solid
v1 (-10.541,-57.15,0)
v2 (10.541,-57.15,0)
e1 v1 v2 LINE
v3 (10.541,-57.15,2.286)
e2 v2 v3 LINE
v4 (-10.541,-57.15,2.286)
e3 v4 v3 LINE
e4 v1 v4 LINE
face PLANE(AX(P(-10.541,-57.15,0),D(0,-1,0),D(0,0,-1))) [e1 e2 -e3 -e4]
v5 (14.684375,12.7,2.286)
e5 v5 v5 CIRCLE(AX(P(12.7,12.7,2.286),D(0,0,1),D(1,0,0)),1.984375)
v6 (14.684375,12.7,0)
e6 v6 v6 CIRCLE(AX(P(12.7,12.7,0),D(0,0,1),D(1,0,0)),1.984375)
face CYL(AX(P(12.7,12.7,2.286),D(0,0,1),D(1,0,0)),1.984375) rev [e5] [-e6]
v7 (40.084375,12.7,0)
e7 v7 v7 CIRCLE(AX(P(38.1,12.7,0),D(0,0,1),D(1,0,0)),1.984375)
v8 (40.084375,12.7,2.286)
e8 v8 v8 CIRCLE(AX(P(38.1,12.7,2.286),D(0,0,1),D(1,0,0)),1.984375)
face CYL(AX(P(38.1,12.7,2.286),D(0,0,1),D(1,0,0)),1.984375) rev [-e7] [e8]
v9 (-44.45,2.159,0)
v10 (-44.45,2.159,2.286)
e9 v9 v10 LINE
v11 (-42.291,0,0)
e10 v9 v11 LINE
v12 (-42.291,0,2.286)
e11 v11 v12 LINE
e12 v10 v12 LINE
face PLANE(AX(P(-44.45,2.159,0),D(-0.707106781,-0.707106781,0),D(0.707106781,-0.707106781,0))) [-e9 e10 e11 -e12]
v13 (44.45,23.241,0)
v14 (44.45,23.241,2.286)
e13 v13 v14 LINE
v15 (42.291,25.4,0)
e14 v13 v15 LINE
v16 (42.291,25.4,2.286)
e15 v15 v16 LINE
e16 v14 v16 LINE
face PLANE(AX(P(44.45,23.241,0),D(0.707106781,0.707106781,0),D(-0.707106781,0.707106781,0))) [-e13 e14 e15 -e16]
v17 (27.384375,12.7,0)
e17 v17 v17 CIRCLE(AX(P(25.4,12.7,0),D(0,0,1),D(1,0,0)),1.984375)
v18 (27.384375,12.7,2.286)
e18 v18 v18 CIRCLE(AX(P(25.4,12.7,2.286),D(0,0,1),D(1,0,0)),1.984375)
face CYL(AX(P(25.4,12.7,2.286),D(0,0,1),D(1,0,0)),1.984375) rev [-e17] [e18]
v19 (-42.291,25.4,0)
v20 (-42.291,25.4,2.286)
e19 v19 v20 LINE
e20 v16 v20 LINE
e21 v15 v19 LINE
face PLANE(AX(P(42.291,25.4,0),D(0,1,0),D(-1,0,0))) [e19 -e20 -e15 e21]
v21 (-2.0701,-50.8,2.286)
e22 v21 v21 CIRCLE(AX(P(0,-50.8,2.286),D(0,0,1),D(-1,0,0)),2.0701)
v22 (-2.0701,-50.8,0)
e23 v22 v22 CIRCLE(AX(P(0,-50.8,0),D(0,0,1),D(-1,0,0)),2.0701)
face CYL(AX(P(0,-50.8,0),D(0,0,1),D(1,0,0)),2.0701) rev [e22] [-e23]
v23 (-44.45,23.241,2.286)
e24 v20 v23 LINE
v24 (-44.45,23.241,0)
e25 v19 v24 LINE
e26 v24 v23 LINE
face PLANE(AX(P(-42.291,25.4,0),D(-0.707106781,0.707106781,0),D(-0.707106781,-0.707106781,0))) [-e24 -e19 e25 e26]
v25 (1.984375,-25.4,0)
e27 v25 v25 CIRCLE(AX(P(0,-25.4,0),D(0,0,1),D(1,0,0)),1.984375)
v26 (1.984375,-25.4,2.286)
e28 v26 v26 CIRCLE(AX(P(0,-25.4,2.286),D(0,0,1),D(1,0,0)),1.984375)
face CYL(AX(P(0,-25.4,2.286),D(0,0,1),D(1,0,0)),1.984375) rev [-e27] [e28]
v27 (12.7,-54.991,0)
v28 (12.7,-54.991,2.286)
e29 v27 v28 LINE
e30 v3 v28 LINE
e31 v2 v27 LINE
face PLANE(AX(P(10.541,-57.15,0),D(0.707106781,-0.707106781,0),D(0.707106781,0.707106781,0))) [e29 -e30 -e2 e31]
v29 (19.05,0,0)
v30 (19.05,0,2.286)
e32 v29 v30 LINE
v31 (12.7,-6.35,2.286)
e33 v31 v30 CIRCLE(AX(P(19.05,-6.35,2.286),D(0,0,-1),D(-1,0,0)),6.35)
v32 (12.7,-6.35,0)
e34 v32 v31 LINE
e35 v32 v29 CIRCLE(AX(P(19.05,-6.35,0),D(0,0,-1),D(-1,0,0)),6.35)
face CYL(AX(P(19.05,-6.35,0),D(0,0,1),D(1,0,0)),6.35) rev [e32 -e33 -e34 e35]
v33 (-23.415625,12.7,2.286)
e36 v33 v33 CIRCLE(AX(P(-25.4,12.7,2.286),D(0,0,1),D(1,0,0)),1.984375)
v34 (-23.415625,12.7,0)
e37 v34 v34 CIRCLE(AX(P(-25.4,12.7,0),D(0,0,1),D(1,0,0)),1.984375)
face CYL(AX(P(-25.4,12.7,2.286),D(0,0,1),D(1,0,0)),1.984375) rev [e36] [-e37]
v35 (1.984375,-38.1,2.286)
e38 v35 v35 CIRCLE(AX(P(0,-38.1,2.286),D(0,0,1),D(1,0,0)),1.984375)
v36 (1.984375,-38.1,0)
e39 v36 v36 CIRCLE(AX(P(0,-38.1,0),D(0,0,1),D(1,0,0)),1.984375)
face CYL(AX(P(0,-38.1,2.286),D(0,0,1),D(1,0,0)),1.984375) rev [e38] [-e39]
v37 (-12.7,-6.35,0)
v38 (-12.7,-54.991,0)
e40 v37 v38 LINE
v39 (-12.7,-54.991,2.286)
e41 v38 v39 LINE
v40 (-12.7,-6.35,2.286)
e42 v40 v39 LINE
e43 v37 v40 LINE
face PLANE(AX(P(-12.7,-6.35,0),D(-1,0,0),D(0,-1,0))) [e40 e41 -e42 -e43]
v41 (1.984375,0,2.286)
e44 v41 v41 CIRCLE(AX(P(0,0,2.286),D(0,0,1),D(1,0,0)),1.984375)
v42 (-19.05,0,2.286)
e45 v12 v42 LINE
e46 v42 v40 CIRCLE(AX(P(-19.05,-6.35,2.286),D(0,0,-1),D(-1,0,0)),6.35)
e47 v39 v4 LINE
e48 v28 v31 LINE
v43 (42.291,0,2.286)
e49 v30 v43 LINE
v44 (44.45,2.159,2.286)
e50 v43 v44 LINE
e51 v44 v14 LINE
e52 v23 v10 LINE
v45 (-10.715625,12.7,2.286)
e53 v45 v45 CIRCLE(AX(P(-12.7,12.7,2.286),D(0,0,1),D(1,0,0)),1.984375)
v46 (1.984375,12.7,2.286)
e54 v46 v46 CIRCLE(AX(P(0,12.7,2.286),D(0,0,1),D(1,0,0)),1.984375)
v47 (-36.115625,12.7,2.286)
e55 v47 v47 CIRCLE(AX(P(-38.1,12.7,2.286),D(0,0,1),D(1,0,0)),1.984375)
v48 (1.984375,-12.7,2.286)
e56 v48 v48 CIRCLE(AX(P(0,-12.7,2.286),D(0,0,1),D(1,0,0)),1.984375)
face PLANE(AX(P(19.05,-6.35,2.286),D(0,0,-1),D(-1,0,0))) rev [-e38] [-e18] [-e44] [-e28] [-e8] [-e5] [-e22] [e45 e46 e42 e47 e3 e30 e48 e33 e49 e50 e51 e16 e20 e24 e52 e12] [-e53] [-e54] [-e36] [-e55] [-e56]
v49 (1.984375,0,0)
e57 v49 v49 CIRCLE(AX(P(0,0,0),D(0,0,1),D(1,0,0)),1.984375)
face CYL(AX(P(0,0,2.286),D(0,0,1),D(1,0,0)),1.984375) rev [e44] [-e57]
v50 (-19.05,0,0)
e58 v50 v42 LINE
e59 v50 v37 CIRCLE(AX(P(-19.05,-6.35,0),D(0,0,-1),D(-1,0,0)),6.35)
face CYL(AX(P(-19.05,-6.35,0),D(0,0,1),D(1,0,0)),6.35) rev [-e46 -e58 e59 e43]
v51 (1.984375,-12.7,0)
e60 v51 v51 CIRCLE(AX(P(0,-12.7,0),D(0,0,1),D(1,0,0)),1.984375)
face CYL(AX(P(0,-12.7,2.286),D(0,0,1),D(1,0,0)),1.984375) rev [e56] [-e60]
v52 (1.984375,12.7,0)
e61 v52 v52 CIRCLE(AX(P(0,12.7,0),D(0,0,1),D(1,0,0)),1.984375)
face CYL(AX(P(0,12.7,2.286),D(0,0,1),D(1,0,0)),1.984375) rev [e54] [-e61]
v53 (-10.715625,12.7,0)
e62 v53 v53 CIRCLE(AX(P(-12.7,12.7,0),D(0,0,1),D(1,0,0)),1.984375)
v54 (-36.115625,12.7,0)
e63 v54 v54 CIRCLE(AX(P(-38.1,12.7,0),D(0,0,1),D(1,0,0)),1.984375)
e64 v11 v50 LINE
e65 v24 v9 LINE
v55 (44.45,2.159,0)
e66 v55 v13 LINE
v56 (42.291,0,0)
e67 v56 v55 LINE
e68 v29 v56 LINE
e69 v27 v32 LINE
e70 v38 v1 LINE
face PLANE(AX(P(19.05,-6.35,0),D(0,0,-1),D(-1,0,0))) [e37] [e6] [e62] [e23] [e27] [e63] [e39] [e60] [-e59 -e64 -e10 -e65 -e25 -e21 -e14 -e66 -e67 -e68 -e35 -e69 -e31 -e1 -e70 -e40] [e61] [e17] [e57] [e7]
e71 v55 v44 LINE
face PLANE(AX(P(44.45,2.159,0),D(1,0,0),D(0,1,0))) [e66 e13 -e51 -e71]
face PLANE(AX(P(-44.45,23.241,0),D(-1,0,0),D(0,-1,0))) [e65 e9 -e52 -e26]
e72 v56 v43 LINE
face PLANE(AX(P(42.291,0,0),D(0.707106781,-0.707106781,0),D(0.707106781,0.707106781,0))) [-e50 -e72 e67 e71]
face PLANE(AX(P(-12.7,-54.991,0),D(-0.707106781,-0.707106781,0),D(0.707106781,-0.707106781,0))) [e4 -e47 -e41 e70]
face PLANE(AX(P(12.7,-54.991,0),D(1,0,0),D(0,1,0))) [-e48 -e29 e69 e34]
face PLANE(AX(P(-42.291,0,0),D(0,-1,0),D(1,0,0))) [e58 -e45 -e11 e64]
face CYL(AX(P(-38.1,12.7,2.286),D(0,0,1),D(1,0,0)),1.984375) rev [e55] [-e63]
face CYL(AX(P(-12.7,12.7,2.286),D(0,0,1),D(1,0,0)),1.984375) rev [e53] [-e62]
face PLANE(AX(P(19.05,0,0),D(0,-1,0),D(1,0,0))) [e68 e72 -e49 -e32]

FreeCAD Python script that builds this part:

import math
import FreeCAD as App
import Part
import Sketcher
Q = App.Units.Quantity

doc = App.newDocument("Part")
body = doc.addObject("PartDesign::Body", "Body")

sketch1 = doc.addObject("Sketcher::SketchObject", "Sketch")
body.addObject(sketch1)
sketch1.AttachmentSupport = (doc.XY_Plane, [""])
sketch1.MapMode = "FlatFace"
sketch1.AttachmentOffset = App.Placement(App.Vector(0, 0, 0.09 * 25.4), App.Rotation())
sketch1.addGeometry(Part.LineSegment(App.Vector(12.7, -55, 0), App.Vector(12.7, -6.3, 0)), False)
sketch1.addGeometry(Part.ArcOfCircle(Part.Circle(App.Vector(19, -6.3, 0), App.Vector(0, 0, 1), 6.3), math.radians(90), math.radians(180)), False)
sketch1.addGeometry(Part.LineSegment(App.Vector(19.1, 0, 0), App.Vector(42.3, 0, 0)), False)
sketch1.addGeometry(Part.LineSegment(App.Vector(42.3, 0, 0), App.Vector(44.5, 2.2, 0)), False)
sketch1.addGeometry(Part.LineSegment(App.Vector(44.5, 2.2, 0), App.Vector(44.5, 23.2, 0)), False)
sketch1.addGeometry(Part.LineSegment(App.Vector(44.5, 23.2, 0), App.Vector(42.3, 25.4, 0)), False)
sketch1.addGeometry(Part.LineSegment(App.Vector(42.3, 25.4, 0), App.Vector(-42.3, 25.4, 0)), False)
sketch1.addGeometry(Part.LineSegment(App.Vector(-42.3, 25.4, 0), App.Vector(-44.5, 23.2, 0)), False)
sketch1.addGeometry(Part.LineSegment(App.Vector(-44.5, 23.2, 0), App.Vector(-44.5, 2.2, 0)), False)
sketch1.addGeometry(Part.LineSegment(App.Vector(-44.5, 2.2, 0), App.Vector(-42.3, 0, 0)), False)
sketch1.addGeometry(Part.LineSegment(App.Vector(-42.3, 0, 0), App.Vector(-19.1, 0, 0)), False)
sketch1.addGeometry(Part.ArcOfCircle(Part.Circle(App.Vector(-19, -6.3, 0), App.Vector(0, 0, 1), 6.3), math.radians(0), math.radians(90)), False)
sketch1.addGeometry(Part.LineSegment(App.Vector(-12.7, -6.3, 0), App.Vector(-12.7, -55, 0)), False)
sketch1.addGeometry(Part.LineSegment(App.Vector(-12.7, -55, 0), App.Vector(-10.5, -57.1, 0)), False)
sketch1.addGeometry(Part.LineSegment(App.Vector(-10.5, -57.1, 0), App.Vector(10.5, -57.1, 0)), False)
sketch1.addGeometry(Part.LineSegment(App.Vector(10.5, -57.1, 0), App.Vector(12.7, -55, 0)), False)
sketch1.addGeometry(Part.Circle(App.Vector(0, -50.8, 0), App.Vector(0, 0, 1), 2.1), False)
sketch1.addConstraint(Sketcher.Constraint("Tangent", 0, 2, 1, 2))
sketch1.addConstraint(Sketcher.Constraint("Tangent", 1, 1, 2, 1))
sketch1.addConstraint(Sketcher.Constraint("Coincident", 2, 2, 3, 1))
sketch1.addConstraint(Sketcher.Constraint("Coincident", 3, 2, 4, 1))
sketch1.addConstraint(Sketcher.Constraint("Coincident", 4, 2, 5, 1))
sketch1.addConstraint(Sketcher.Constraint("Coincident", 5, 2, 6, 1))
sketch1.addConstraint(Sketcher.Constraint("Coincident", 6, 2, 7, 1))
sketch1.addConstraint(Sketcher.Constraint("Coincident", 7, 2, 8, 1))
sketch1.addConstraint(Sketcher.Constraint("Coincident", 8, 2, 9, 1))
sketch1.addConstraint(Sketcher.Constraint("Coincident", 9, 2, 10, 1))
sketch1.addConstraint(Sketcher.Constraint("Tangent", 10, 2, 11, 2))
sketch1.addConstraint(Sketcher.Constraint("Tangent", 11, 1, 12, 1))
sketch1.addConstraint(Sketcher.Constraint("Coincident", 12, 2, 13, 1))
sketch1.addConstraint(Sketcher.Constraint("Coincident", 13, 2, 14, 1))
sketch1.addConstraint(Sketcher.Constraint("Coincident", 14, 2, 15, 1))
sketch1.addConstraint(Sketcher.Constraint("Coincident", 15, 2, 0, 1))
sketch1.addConstraint(Sketcher.Constraint("Vertical", 0))
sketch1.addConstraint(Sketcher.Constraint("Horizontal", 2))
sketch1.addConstraint(Sketcher.Constraint("Vertical", 4))
sketch1.addConstraint(Sketcher.Constraint("Horizontal", 6))
sketch1.addConstraint(Sketcher.Constraint("Vertical", 8))
sketch1.addConstraint(Sketcher.Constraint("Horizontal", 10))
sketch1.addConstraint(Sketcher.Constraint("Vertical", 12))
sketch1.addConstraint(Sketcher.Constraint("Horizontal", 14))
sketch1.addConstraint(Sketcher.Constraint("Equal", 1, 11))
sketch1.addConstraint(Sketcher.Constraint("Symmetric", 2, 2, 9, 2, -1, 1))
sketch1.addConstraint(Sketcher.Constraint("Symmetric", 1, 3, 11, 3, -2))
sketch1.addConstraint(Sketcher.Constraint("Symmetric", 4, 2, 7, 2, -2))
sketch1.addConstraint(Sketcher.Constraint("PointOnObject", 16, 3, -2))
sketch1.addConstraint(Sketcher.Constraint("Perpendicular", 3, 5))
sketch1.addConstraint(Sketcher.Constraint("Perpendicular", 5, 7))
sketch1.addConstraint(Sketcher.Constraint("Perpendicular", 7, 9))
sketch1.addConstraint(Sketcher.Constraint("Parallel", 9, 13))
sketch1.addConstraint(Sketcher.Constraint("Perpendicular", 13, 15))
sketch1.addConstraint(Sketcher.Constraint("Horizontal", 3, 2, 8, 2))
sketch1.addConstraint(Sketcher.Constraint("Horizontal", 12, 2, 15, 2))
sketch1.addConstraint(Sketcher.Constraint("Vertical", 2, 2, 5, 2))
sketch1.addConstraint(Sketcher.Constraint("Equal", 14, 4))
sketch1.addConstraint(Sketcher.Constraint("Equal", 9, 13))
sketch1.addConstraint(Sketcher.Constraint("Radius", 1, Q("0.25 in")))
sketch1.addConstraint(Sketcher.Constraint("Diameter", 16, Q("0.163 in")))
sketch1.addConstraint(Sketcher.Constraint("DistanceY", 16, 3, -1, 1, Q("2 in")))
sketch1.addConstraint(Sketcher.Constraint("DistanceY", -1, 1, 5, 2, Q("1 in")))
sketch1.addConstraint(Sketcher.Constraint("DistanceX", 1, 1, 3, 2, Q("1 in")))
sketch1.addConstraint(Sketcher.Constraint("DistanceY", 13, 2, 11, 1, Q("2 in")))
sketch1.addConstraint(Sketcher.Constraint("DistanceX", 6, 2, 6, 1, Q("3.33 in")))
pad1 = doc.addObject("PartDesign::Pad", "Pad")
body.addObject(pad1)
pad1.Profile = sketch1
pad1.Length = Q("0.09 in")
pad1.Reversed = True

sketch2 = doc.addObject("Sketcher::SketchObject", "Sketch001")
body.addObject(sketch2)
sketch2.AttachmentSupport = (doc.XY_Plane, [""])
sketch2.MapMode = "FlatFace"
sketch2.AttachmentOffset = App.Placement(App.Vector(0, 0, 0.09 * 25.4), App.Rotation())
sketch2.addGeometry(Part.Circle(App.Vector(-38.1, 12.7, 0), App.Vector(0, 0, 1), 2), False)
sketch2.addGeometry(Part.Circle(App.Vector(-25.4, 12.7, 0), App.Vector(0, 0, 1), 2), False)
sketch2.addGeometry(Part.Circle(App.Vector(-12.7, 12.7, 0), App.Vector(0, 0, 1), 2), False)
sketch2.addGeometry(Part.Circle(App.Vector(0, 12.7, 0), App.Vector(0, 0, 1), 2), False)
sketch2.addGeometry(Part.Circle(App.Vector(12.7, 12.7, 0), App.Vector(0, 0, 1), 2), False)
sketch2.addGeometry(Part.Circle(App.Vector(25.4, 12.7, 0), App.Vector(0, 0, 1), 2), False)
sketch2.addGeometry(Part.Circle(App.Vector(38.1, 12.7, 0), App.Vector(0, 0, 1), 2), False)
sketch2.addGeometry(Part.Circle(App.Vector(0, 0, 0), App.Vector(0, 0, 1), 2), False)
sketch2.addGeometry(Part.Circle(App.Vector(0, -12.7, 0), App.Vector(0, 0, 1), 2), False)
sketch2.addGeometry(Part.Circle(App.Vector(0, -25.4, 0), App.Vector(0, 0, 1), 2), False)
sketch2.addGeometry(Part.Circle(App.Vector(0, -38.1, 0), App.Vector(0, 0, 1), 2), False)
sketch2.addGeometry(Part.Circle(App.Vector(0, -50.8, 0), App.Vector(0, 0, 1), 2), False)
sketch2.addConstraint(Sketcher.Constraint("Coincident", 7, 3, -1, 1))
sketch2.addConstraint(Sketcher.Constraint("Equal", 0, 1))
sketch2.addConstraint(Sketcher.Constraint("Equal", 1, 2))
sketch2.addConstraint(Sketcher.Constraint("Equal", 2, 3))
sketch2.addConstraint(Sketcher.Constraint("Equal", 3, 4))
sketch2.addConstraint(Sketcher.Constraint("Equal", 4, 5))
sketch2.addConstraint(Sketcher.Constraint("Equal", 5, 6))
sketch2.addConstraint(Sketcher.Constraint("Equal", 6, 7))
sketch2.addConstraint(Sketcher.Constraint("Equal", 7, 8))
sketch2.addConstraint(Sketcher.Constraint("Equal", 8, 9))
sketch2.addConstraint(Sketcher.Constraint("Equal", 9, 10))
sketch2.addConstraint(Sketcher.Constraint("Equal", 10, 11))
sketch2.addConstraint(Sketcher.Constraint("Symmetric", 3, 3, 8, 3, -1, 1))
sketch2.addConstraint(Sketcher.Constraint("Symmetric", 2, 3, 4, 3, -2))
sketch2.addConstraint(Sketcher.Constraint("Symmetric", 1, 3, 5, 3, -2))
sketch2.addConstraint(Sketcher.Constraint("Symmetric", 0, 3, 6, 3, -2))
sketch2.addConstraint(Sketcher.Constraint("PointOnObject", 3, 3, -2))
sketch2.addConstraint(Sketcher.Constraint("PointOnObject", 9, 3, -2))
sketch2.addConstraint(Sketcher.Constraint("PointOnObject", 10, 3, -2))
sketch2.addConstraint(Sketcher.Constraint("PointOnObject", 11, 3, -2))
sketch2.addConstraint(Sketcher.Constraint("Horizontal", 0, 3, 1, 3))
sketch2.addConstraint(Sketcher.Constraint("Horizontal", 1, 3, 2, 3))
sketch2.addConstraint(Sketcher.Constraint("Horizontal", 2, 3, 3, 3))
sketch2.addConstraint(Sketcher.Constraint("Diameter", 0, Q("0.15625 in")))
sketch2.addConstraint(Sketcher.Constraint("DistanceX", 1, 3, -1, 1, Q("1 in")))
sketch2.addConstraint(Sketcher.Constraint("DistanceY", 9, 3, -1, 1, Q("1 in")))
sketch2.addConstraint(Sketcher.Constraint("DistanceY", 11, 3, -1, 1, Q("2 in")))
sketch2.addConstraint(Sketcher.Constraint("DistanceX", 0, 3, 2, 3, Q("1 in")))
sketch2.addConstraint(Sketcher.Constraint("DistanceX", 2, 3, 4, 3, Q("1 in")))
sketch2.addConstraint(Sketcher.Constraint("DistanceY", 8, 3, 3, 3, Q("1 in")))
sketch2.addConstraint(Sketcher.Constraint("DistanceY", 10, 3, 8, 3, Q("1 in")))
doc.recompute()
hole = doc.addObject("PartDesign::Hole", "Hole")
body.addObject(hole)
hole.Profile = sketch2
hole.ThreadType = "None"
hole.Diameter = Q("0.15625 in")
hole.DepthType = "ThroughAll"

doc.recompute()
